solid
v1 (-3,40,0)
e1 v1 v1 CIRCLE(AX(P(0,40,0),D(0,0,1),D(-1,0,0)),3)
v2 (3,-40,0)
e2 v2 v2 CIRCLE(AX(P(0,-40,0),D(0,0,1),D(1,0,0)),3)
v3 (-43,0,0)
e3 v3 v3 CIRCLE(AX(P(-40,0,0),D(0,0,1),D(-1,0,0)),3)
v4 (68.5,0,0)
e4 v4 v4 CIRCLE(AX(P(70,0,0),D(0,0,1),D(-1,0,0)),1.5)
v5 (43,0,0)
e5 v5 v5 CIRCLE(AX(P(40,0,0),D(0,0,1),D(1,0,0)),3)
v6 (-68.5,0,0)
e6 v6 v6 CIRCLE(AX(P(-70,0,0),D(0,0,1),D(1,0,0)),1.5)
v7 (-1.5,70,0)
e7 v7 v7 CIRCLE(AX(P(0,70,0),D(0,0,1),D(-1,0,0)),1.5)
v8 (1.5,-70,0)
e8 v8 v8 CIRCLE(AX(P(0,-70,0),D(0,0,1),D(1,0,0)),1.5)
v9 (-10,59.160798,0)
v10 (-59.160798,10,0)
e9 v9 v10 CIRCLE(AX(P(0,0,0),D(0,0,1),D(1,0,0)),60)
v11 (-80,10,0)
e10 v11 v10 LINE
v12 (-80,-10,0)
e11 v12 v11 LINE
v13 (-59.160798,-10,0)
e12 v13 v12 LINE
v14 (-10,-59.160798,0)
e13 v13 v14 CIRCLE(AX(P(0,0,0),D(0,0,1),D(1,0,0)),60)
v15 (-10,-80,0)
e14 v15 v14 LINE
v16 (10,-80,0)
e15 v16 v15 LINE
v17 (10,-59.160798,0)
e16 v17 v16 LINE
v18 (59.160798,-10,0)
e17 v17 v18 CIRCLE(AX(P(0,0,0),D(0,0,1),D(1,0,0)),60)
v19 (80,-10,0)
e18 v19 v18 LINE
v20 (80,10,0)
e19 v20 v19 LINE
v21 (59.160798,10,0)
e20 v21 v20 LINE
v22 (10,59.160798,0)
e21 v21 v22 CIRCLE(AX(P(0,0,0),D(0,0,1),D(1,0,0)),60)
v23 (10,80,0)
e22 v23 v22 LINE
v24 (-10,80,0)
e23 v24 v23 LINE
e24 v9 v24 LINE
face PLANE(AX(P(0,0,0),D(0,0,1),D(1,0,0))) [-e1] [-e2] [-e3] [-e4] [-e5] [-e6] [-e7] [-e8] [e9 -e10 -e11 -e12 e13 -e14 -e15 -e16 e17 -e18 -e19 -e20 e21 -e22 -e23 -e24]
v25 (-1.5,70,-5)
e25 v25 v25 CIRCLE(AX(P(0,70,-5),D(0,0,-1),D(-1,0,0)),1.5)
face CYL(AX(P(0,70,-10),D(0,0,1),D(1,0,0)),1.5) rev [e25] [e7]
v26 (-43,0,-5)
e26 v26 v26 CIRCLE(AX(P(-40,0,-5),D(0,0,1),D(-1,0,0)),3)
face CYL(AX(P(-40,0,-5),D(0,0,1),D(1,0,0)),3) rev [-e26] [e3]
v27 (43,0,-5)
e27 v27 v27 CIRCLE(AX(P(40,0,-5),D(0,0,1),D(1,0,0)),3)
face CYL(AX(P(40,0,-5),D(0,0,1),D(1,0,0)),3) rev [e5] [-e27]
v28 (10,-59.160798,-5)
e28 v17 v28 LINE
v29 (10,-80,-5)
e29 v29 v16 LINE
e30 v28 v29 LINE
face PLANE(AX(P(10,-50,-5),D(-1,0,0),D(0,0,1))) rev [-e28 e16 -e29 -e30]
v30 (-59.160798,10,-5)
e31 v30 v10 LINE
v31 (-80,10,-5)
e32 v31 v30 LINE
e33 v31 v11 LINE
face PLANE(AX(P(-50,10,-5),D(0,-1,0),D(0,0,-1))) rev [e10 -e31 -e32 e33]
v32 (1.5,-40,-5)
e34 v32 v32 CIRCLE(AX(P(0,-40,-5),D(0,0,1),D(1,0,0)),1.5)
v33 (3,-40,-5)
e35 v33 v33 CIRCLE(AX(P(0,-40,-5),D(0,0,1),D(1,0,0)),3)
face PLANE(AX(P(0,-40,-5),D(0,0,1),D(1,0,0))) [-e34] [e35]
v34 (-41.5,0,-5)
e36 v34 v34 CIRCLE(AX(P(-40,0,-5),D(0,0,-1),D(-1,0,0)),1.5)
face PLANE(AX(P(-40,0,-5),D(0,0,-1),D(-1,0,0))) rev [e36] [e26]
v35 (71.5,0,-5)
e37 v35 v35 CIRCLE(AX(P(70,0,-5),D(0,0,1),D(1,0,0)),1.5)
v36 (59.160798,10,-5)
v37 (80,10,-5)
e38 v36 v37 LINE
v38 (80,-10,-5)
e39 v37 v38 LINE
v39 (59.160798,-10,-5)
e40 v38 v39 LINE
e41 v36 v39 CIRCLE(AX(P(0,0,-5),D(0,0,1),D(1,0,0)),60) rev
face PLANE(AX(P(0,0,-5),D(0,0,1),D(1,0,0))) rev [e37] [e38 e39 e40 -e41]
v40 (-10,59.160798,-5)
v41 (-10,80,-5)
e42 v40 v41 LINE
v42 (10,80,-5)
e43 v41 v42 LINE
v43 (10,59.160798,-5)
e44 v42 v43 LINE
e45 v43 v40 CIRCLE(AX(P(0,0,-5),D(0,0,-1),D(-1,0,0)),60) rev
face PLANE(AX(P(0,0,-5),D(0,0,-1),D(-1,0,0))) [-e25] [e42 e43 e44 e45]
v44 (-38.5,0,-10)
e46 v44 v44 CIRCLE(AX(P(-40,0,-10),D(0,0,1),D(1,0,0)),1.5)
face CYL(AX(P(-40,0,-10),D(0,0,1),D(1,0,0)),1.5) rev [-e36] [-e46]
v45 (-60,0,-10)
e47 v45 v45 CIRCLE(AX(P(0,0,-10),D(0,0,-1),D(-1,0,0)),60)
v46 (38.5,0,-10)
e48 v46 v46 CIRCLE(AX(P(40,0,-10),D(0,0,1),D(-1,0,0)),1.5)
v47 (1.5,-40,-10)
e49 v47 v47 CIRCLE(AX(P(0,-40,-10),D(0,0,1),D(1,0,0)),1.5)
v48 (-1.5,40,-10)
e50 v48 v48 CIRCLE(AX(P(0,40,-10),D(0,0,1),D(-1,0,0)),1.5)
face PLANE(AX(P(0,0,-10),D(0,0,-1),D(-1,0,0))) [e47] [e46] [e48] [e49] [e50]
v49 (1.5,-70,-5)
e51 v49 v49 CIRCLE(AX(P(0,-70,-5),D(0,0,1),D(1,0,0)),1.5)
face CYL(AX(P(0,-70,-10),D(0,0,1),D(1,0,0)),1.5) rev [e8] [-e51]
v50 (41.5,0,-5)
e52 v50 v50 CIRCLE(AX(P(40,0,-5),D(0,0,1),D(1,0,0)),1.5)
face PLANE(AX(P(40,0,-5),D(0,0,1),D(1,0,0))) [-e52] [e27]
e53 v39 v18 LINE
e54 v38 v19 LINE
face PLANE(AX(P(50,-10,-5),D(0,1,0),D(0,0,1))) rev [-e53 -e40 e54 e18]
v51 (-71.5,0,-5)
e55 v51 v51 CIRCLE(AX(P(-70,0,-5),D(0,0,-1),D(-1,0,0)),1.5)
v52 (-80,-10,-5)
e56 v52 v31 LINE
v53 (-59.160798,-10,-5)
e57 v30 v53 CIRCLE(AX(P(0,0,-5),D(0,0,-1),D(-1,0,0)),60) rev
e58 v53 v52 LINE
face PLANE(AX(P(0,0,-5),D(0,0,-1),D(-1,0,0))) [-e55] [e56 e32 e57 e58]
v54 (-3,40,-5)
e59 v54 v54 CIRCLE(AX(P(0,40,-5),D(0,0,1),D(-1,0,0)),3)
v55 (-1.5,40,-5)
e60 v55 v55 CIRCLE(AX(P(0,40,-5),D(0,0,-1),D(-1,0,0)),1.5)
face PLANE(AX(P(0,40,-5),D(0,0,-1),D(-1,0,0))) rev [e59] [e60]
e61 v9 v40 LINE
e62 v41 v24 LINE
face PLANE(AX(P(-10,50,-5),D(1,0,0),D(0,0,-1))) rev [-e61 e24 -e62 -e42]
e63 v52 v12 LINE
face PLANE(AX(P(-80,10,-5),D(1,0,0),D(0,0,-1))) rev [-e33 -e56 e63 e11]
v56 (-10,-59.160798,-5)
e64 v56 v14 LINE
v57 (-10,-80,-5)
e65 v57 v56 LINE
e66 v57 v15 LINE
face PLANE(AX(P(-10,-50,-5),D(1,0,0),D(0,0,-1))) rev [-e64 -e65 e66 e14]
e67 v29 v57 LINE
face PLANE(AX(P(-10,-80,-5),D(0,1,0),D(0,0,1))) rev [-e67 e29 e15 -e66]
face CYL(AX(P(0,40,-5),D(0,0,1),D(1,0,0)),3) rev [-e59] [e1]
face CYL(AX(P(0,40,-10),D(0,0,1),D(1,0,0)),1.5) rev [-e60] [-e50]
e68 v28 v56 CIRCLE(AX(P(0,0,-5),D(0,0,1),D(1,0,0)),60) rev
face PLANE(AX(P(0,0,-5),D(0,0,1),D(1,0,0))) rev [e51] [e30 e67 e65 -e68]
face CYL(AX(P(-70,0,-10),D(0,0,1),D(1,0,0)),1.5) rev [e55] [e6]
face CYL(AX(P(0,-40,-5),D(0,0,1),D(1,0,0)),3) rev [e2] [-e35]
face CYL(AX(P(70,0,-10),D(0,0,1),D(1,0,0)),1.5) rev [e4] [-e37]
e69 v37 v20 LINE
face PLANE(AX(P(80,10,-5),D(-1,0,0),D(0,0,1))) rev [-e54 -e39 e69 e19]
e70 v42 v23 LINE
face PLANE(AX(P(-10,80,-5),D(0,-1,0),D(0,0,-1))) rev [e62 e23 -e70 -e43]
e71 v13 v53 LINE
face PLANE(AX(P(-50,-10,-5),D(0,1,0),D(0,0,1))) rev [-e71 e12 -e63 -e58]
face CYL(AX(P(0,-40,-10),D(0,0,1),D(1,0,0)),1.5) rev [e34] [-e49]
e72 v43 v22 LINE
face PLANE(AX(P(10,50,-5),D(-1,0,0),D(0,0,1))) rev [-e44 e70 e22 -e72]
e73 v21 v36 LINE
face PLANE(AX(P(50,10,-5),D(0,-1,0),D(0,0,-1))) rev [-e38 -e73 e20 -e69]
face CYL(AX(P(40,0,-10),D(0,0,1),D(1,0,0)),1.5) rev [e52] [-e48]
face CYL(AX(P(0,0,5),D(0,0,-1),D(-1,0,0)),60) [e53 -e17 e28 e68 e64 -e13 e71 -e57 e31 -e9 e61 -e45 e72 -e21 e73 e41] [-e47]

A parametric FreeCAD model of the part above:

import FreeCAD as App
import Part
import Sketcher

V = App.Vector

doc = App.newDocument("Part")
body = doc.addObject("PartDesign::Body", "Body")

# Sketch on XY plane
sketch1 = body.newObject("Sketcher::SketchObject", "Sketch")
sketch1.AttachmentSupport = (doc.getObject("XY_Plane"), [""])
sketch1.MapMode = "FlatFace"
sketch1.addGeometry(Part.Circle(V(0, 0, 0), V(0, 0, 1), 60), False)
sketch1.addConstraint(Sketcher.Constraint("Coincident", 0, 3, -1, 1))
sketch1.addConstraint(Sketcher.Constraint("Diameter", 0, 120.0))
pad1 = body.newObject("PartDesign::Pad", "Pad")
pad1.Profile = sketch1
pad1.Length = 5

# Sketch on XY plane
sketch2 = body.newObject("Sketcher::SketchObject", "Sketch001")
sketch2.AttachmentSupport = (doc.getObject("XY_Plane"), [""])
sketch2.MapMode = "FlatFace"
sketch2.addGeometry(Part.LineSegment(V(10, -50, 0), V(10, -80, 0)), False)
sketch2.addGeometry(Part.LineSegment(V(10, -80, 0), V(-10, -80, 0)), False)
sketch2.addGeometry(Part.LineSegment(V(-10, -80, 0), V(-10, -50, 0)), False)
sketch2.addGeometry(Part.LineSegment(V(-10, -50, 0), V(10, -50, 0)), False)
sketch2.addGeometry(Part.LineSegment(V(10, 80, 0), V(10, 50, 0)), False)
sketch2.addGeometry(Part.LineSegment(V(10, 50, 0), V(-10, 50, 0)), False)
sketch2.addGeometry(Part.LineSegment(V(-10, 50, 0), V(-10, 80, 0)), False)
sketch2.addGeometry(Part.LineSegment(V(-10, 80, 0), V(10, 80, 0)), False)
sketch2.addGeometry(Part.LineSegment(V(-50, 10, 0), V(-50, -10, 0)), False)
sketch2.addGeometry(Part.LineSegment(V(-50, -10, 0), V(-80, -10, 0)), False)
sketch2.addGeometry(Part.LineSegment(V(-80, -10, 0), V(-80, 10, 0)), False)
sketch2.addGeometry(Part.LineSegment(V(-80, 10, 0), V(-50, 10, 0)), False)
sketch2.addGeometry(Part.LineSegment(V(80, 10, 0), V(80, -10, 0)), False)
sketch2.addGeometry(Part.LineSegment(V(80, -10, 0), V(50, -10, 0)), False)
sketch2.addGeometry(Part.LineSegment(V(50, -10, 0), V(50, 10, 0)), False)
sketch2.addGeometry(Part.LineSegment(V(50, 10, 0), V(80, 10, 0)), False)
sketch2.addConstraint(Sketcher.Constraint("Coincident", 0, 2, 1, 1))
sketch2.addConstraint(Sketcher.Constraint("Coincident", 1, 2, 2, 1))
sketch2.addConstraint(Sketcher.Constraint("Coincident", 2, 2, 3, 1))
sketch2.addConstraint(Sketcher.Constraint("Coincident", 3, 2, 0, 1))
sketch2.addConstraint(Sketcher.Constraint("Coincident", 4, 2, 5, 1))
sketch2.addConstraint(Sketcher.Constraint("Coincident", 5, 2, 6, 1))
sketch2.addConstraint(Sketcher.Constraint("Coincident", 6, 2, 7, 1))
sketch2.addConstraint(Sketcher.Constraint("Coincident", 7, 2, 4, 1))
sketch2.addConstraint(Sketcher.Constraint("Coincident", 8, 2, 9, 1))
sketch2.addConstraint(Sketcher.Constraint("Coincident", 9, 2, 10, 1))
sketch2.addConstraint(Sketcher.Constraint("Coincident", 10, 2, 11, 1))
sketch2.addConstraint(Sketcher.Constraint("Coincident", 11, 2, 8, 1))
sketch2.addConstraint(Sketcher.Constraint("Coincident", 12, 2, 13, 1))
sketch2.addConstraint(Sketcher.Constraint("Coincident", 13, 2, 14, 1))
sketch2.addConstraint(Sketcher.Constraint("Coincident", 14, 2, 15, 1))
sketch2.addConstraint(Sketcher.Constraint("Coincident", 15, 2, 12, 1))
sketch2.addConstraint(Sketcher.Constraint("Vertical", 0))
sketch2.addConstraint(Sketcher.Constraint("Horizontal", 1))
sketch2.addConstraint(Sketcher.Constraint("Vertical", 2))
sketch2.addConstraint(Sketcher.Constraint("Horizontal", 3))
sketch2.addConstraint(Sketcher.Constraint("Vertical", 4))
sketch2.addConstraint(Sketcher.Constraint("Horizontal", 5))
sketch2.addConstraint(Sketcher.Constraint("Vertical", 6))
sketch2.addConstraint(Sketcher.Constraint("Horizontal", 7))
sketch2.addConstraint(Sketcher.Constraint("Vertical", 8))
sketch2.addConstraint(Sketcher.Constraint("Horizontal", 9))
sketch2.addConstraint(Sketcher.Constraint("Vertical", 10))
sketch2.addConstraint(Sketcher.Constraint("Horizontal", 11))
sketch2.addConstraint(Sketcher.Constraint("Vertical", 12))
sketch2.addConstraint(Sketcher.Constraint("Horizontal", 13))
sketch2.addConstraint(Sketcher.Constraint("Vertical", 14))
sketch2.addConstraint(Sketcher.Constraint("Horizontal", 15))
sketch2.addConstraint(Sketcher.Constraint("Symmetric", 2, 2, 4, 2, -1, 1))
sketch2.addConstraint(Sketcher.Constraint("Symmetric", 0, 2, 6, 2, -1, 1))
sketch2.addConstraint(Sketcher.Constraint("Symmetric", 10, 2, 12, 2, -1, 1))
sketch2.addConstraint(Sketcher.Constraint("Symmetric", 8, 2, 14, 2, -1, 1))
sketch2.addConstraint(Sketcher.Constraint("Horizontal", 9, 2, 12, 2))
sketch2.addConstraint(Sketcher.Constraint("Vertical", 3, 2, 4, 2))
sketch2.addConstraint(Sketcher.Constraint("Equal", 15, 0))
sketch2.addConstraint(Sketcher.Constraint("Equal", 7, 8))
sketch2.addConstraint(Sketcher.Constraint("DistanceX", 1, 2, 1, 1, 20.0))
sketch2.addConstraint(Sketcher.Constraint("DistanceX", 9, 2, 9, 1, 30.0))
sketch2.addConstraint(Sketcher.Constraint("DistanceY", 0, 2, -1, 1, 80.0))
sketch2.addConstraint(Sketcher.Constraint("DistanceX", 8, 2, -1, 1, 50.0))
pad2 = body.newObject("PartDesign::Pad", "Pad001")
pad2.Profile = sketch2
pad2.Length = 5
pad2.Reversed = True

# Sketch on XY plane
sketch3 = body.newObject("Sketcher::SketchObject", "Sketch002")
sketch3.AttachmentSupport = (doc.getObject("XY_Plane"), [""])
sketch3.MapMode = "FlatFace"
sketch3.addGeometry(Part.Circle(V(0, 0, 0), V(0, 0, 1), 60), False)
sketch3.addConstraint(Sketcher.Constraint("Coincident", 0, 3, -1, 1))
sketch3.addConstraint(Sketcher.Constraint("Diameter", 0, 120.0))
pad3 = body.newObject("PartDesign::Pad", "Pad002")
pad3.Profile = sketch3
pad3.Length = 10
pad3.Reversed = True

# Sketch on XY plane
sketch4 = body.newObject("Sketcher::SketchObject", "Sketch003")
sketch4.AttachmentSupport = (doc.getObject("XY_Plane"), [""])
sketch4.MapMode = "FlatFace"
sketch4.AttachmentOffset = App.Placement(V(0, 0, 5), App.Rotation())
sketch4.addGeometry(Part.Circle(V(0, 0, 0), V(0, 0, 1), 70), False)
sketch4.addConstraint(Sketcher.Constraint("Coincident", 0, 3, -1, 1))
sketch4.addConstraint(Sketcher.Constraint("Diameter", 0, 140.0))
pocket1 = body.newObject("PartDesign::Pocket", "Pocket")
pocket1.Profile = sketch4
pocket1.Length = 5

# Sketch on XY plane
sketch5 = body.newObject("Sketcher::SketchObject", "Sketch004")
sketch5.AttachmentSupport = (doc.getObject("XY_Plane"), [""])
sketch5.MapMode = "FlatFace"
sketch5.addGeometry(Part.Circle(V(0, -40, 0), V(0, 0, 1), 3), False)
sketch5.addGeometry(Part.Circle(V(0, 40, 0), V(0, 0, 1), 3), False)
sketch5.addGeometry(Part.Circle(V(-40, 0, 0), V(0, 0, 1), 3), False)
sketch5.addGeometry(Part.Circle(V(40, 0, 0), V(0, 0, 1), 3), False)
sketch5.addConstraint(Sketcher.Constraint("Equal", 0, 1))
sketch5.addConstraint(Sketcher.Constraint("Equal", 1, 2))
sketch5.addConstraint(Sketcher.Constraint("Equal", 2, 3))
sketch5.addConstraint(Sketcher.Constraint("Symmetric", 0, 3, 1, 3, -1, 1))
sketch5.addConstraint(Sketcher.Constraint("Symmetric", 2, 3, 3, 3, -1, 1))
sketch5.addConstraint(Sketcher.Constraint("PointOnObject", 0, 3, -2))
sketch5.addConstraint(Sketcher.Constraint("PointOnObject", 2, 3, -1))
sketch5.addConstraint(Sketcher.Constraint("Diameter", 0, 6.0))
sketch5.addConstraint(Sketcher.Constraint("DistanceY", 0, 3, -1, 1, 40.0))
sketch5.addConstraint(Sketcher.Constraint("DistanceX", 2, 3, -1, 1, 40.0))
pocket2 = body.newObject("PartDesign::Pocket", "Pocket001")
pocket2.Profile = sketch5
pocket2.Length = 5

# Sketch on XY plane
sketch6 = body.newObject("Sketcher::SketchObject", "Sketch005")
sketch6.AttachmentSupport = (doc.getObject("XY_Plane"), [""])
sketch6.MapMode = "FlatFace"
sketch6.addGeometry(Part.Circle(V(-40, 0, 0), V(0, 0, 1), 1.5), False)
sketch6.addGeometry(Part.Circle(V(40, 0, 0), V(0, 0, 1), 1.5), False)
sketch6.addGeometry(Part.Circle(V(-70, 0, 0), V(0, 0, 1), 1.5), False)
sketch6.addGeometry(Part.Circle(V(70, 0, 0), V(0, 0, 1), 1.5), False)
sketch6.addGeometry(Part.Circle(V(0, -40, 0), V(0, 0, 1), 1.5), False)
sketch6.addGeometry(Part.Circle(V(0, -70, 0), V(0, 0, 1), 1.5), False)
sketch6.addGeometry(Part.Circle(V(0, 40, 0), V(0, 0, 1), 1.5), False)
sketch6.addGeometry(Part.Circle(V(0, 70, 0), V(0, 0, 1), 1.5), False)
sketch6.addConstraint(Sketcher.Constraint("Equal", 0, 1))
sketch6.addConstraint(Sketcher.Constraint("Equal", 1, 2))
sketch6.addConstraint(Sketcher.Constraint("Equal", 2, 3))
sketch6.addConstraint(Sketcher.Constraint("Equal", 3, 4))
sketch6.addConstraint(Sketcher.Constraint("Equal", 4, 5))
sketch6.addConstraint(Sketcher.Constraint("Equal", 5, 6))
sketch6.addConstraint(Sketcher.Constraint("Equal", 6, 7))
sketch6.addConstraint(Sketcher.Constraint("Symmetric", 0, 3, 1, 3, -1, 1))
sketch6.addConstraint(Sketcher.Constraint("Symmetric", 2, 3, 3, 3, -1, 1))
sketch6.addConstraint(Sketcher.Constraint("Symmetric", 4, 3, 6, 3, -1, 1))
sketch6.addConstraint(Sketcher.Constraint("Symmetric", 5, 3, 7, 3, -1, 1))
sketch6.addConstraint(Sketcher.Constraint("PointOnObject", 0, 3, -1))
sketch6.addConstraint(Sketcher.Constraint("PointOnObject", 2, 3, -1))
sketch6.addConstraint(Sketcher.Constraint("PointOnObject", 4, 3, -2))
sketch6.addConstraint(Sketcher.Constraint("PointOnObject", 5, 3, -2))
sketch6.addConstraint(Sketcher.Constraint("Diameter", 0, 3.0))
sketch6.addConstraint(Sketcher.Constraint("DistanceX", 0, 3, -1, 1, 40.0))
sketch6.addConstraint(Sketcher.Constraint("DistanceX", 2, 3, -1, 1, 70.0))
sketch6.addConstraint(Sketcher.Constraint("DistanceY", 4, 3, -1, 1, 40.0))
sketch6.addConstraint(Sketcher.Constraint("DistanceY", 5, 3, -1, 1, 70.0))
pocket3 = body.newObject("PartDesign::Pocket", "Pocket002")
pocket3.Profile = sketch6
pocket3.Length = 10

doc.recompute()
